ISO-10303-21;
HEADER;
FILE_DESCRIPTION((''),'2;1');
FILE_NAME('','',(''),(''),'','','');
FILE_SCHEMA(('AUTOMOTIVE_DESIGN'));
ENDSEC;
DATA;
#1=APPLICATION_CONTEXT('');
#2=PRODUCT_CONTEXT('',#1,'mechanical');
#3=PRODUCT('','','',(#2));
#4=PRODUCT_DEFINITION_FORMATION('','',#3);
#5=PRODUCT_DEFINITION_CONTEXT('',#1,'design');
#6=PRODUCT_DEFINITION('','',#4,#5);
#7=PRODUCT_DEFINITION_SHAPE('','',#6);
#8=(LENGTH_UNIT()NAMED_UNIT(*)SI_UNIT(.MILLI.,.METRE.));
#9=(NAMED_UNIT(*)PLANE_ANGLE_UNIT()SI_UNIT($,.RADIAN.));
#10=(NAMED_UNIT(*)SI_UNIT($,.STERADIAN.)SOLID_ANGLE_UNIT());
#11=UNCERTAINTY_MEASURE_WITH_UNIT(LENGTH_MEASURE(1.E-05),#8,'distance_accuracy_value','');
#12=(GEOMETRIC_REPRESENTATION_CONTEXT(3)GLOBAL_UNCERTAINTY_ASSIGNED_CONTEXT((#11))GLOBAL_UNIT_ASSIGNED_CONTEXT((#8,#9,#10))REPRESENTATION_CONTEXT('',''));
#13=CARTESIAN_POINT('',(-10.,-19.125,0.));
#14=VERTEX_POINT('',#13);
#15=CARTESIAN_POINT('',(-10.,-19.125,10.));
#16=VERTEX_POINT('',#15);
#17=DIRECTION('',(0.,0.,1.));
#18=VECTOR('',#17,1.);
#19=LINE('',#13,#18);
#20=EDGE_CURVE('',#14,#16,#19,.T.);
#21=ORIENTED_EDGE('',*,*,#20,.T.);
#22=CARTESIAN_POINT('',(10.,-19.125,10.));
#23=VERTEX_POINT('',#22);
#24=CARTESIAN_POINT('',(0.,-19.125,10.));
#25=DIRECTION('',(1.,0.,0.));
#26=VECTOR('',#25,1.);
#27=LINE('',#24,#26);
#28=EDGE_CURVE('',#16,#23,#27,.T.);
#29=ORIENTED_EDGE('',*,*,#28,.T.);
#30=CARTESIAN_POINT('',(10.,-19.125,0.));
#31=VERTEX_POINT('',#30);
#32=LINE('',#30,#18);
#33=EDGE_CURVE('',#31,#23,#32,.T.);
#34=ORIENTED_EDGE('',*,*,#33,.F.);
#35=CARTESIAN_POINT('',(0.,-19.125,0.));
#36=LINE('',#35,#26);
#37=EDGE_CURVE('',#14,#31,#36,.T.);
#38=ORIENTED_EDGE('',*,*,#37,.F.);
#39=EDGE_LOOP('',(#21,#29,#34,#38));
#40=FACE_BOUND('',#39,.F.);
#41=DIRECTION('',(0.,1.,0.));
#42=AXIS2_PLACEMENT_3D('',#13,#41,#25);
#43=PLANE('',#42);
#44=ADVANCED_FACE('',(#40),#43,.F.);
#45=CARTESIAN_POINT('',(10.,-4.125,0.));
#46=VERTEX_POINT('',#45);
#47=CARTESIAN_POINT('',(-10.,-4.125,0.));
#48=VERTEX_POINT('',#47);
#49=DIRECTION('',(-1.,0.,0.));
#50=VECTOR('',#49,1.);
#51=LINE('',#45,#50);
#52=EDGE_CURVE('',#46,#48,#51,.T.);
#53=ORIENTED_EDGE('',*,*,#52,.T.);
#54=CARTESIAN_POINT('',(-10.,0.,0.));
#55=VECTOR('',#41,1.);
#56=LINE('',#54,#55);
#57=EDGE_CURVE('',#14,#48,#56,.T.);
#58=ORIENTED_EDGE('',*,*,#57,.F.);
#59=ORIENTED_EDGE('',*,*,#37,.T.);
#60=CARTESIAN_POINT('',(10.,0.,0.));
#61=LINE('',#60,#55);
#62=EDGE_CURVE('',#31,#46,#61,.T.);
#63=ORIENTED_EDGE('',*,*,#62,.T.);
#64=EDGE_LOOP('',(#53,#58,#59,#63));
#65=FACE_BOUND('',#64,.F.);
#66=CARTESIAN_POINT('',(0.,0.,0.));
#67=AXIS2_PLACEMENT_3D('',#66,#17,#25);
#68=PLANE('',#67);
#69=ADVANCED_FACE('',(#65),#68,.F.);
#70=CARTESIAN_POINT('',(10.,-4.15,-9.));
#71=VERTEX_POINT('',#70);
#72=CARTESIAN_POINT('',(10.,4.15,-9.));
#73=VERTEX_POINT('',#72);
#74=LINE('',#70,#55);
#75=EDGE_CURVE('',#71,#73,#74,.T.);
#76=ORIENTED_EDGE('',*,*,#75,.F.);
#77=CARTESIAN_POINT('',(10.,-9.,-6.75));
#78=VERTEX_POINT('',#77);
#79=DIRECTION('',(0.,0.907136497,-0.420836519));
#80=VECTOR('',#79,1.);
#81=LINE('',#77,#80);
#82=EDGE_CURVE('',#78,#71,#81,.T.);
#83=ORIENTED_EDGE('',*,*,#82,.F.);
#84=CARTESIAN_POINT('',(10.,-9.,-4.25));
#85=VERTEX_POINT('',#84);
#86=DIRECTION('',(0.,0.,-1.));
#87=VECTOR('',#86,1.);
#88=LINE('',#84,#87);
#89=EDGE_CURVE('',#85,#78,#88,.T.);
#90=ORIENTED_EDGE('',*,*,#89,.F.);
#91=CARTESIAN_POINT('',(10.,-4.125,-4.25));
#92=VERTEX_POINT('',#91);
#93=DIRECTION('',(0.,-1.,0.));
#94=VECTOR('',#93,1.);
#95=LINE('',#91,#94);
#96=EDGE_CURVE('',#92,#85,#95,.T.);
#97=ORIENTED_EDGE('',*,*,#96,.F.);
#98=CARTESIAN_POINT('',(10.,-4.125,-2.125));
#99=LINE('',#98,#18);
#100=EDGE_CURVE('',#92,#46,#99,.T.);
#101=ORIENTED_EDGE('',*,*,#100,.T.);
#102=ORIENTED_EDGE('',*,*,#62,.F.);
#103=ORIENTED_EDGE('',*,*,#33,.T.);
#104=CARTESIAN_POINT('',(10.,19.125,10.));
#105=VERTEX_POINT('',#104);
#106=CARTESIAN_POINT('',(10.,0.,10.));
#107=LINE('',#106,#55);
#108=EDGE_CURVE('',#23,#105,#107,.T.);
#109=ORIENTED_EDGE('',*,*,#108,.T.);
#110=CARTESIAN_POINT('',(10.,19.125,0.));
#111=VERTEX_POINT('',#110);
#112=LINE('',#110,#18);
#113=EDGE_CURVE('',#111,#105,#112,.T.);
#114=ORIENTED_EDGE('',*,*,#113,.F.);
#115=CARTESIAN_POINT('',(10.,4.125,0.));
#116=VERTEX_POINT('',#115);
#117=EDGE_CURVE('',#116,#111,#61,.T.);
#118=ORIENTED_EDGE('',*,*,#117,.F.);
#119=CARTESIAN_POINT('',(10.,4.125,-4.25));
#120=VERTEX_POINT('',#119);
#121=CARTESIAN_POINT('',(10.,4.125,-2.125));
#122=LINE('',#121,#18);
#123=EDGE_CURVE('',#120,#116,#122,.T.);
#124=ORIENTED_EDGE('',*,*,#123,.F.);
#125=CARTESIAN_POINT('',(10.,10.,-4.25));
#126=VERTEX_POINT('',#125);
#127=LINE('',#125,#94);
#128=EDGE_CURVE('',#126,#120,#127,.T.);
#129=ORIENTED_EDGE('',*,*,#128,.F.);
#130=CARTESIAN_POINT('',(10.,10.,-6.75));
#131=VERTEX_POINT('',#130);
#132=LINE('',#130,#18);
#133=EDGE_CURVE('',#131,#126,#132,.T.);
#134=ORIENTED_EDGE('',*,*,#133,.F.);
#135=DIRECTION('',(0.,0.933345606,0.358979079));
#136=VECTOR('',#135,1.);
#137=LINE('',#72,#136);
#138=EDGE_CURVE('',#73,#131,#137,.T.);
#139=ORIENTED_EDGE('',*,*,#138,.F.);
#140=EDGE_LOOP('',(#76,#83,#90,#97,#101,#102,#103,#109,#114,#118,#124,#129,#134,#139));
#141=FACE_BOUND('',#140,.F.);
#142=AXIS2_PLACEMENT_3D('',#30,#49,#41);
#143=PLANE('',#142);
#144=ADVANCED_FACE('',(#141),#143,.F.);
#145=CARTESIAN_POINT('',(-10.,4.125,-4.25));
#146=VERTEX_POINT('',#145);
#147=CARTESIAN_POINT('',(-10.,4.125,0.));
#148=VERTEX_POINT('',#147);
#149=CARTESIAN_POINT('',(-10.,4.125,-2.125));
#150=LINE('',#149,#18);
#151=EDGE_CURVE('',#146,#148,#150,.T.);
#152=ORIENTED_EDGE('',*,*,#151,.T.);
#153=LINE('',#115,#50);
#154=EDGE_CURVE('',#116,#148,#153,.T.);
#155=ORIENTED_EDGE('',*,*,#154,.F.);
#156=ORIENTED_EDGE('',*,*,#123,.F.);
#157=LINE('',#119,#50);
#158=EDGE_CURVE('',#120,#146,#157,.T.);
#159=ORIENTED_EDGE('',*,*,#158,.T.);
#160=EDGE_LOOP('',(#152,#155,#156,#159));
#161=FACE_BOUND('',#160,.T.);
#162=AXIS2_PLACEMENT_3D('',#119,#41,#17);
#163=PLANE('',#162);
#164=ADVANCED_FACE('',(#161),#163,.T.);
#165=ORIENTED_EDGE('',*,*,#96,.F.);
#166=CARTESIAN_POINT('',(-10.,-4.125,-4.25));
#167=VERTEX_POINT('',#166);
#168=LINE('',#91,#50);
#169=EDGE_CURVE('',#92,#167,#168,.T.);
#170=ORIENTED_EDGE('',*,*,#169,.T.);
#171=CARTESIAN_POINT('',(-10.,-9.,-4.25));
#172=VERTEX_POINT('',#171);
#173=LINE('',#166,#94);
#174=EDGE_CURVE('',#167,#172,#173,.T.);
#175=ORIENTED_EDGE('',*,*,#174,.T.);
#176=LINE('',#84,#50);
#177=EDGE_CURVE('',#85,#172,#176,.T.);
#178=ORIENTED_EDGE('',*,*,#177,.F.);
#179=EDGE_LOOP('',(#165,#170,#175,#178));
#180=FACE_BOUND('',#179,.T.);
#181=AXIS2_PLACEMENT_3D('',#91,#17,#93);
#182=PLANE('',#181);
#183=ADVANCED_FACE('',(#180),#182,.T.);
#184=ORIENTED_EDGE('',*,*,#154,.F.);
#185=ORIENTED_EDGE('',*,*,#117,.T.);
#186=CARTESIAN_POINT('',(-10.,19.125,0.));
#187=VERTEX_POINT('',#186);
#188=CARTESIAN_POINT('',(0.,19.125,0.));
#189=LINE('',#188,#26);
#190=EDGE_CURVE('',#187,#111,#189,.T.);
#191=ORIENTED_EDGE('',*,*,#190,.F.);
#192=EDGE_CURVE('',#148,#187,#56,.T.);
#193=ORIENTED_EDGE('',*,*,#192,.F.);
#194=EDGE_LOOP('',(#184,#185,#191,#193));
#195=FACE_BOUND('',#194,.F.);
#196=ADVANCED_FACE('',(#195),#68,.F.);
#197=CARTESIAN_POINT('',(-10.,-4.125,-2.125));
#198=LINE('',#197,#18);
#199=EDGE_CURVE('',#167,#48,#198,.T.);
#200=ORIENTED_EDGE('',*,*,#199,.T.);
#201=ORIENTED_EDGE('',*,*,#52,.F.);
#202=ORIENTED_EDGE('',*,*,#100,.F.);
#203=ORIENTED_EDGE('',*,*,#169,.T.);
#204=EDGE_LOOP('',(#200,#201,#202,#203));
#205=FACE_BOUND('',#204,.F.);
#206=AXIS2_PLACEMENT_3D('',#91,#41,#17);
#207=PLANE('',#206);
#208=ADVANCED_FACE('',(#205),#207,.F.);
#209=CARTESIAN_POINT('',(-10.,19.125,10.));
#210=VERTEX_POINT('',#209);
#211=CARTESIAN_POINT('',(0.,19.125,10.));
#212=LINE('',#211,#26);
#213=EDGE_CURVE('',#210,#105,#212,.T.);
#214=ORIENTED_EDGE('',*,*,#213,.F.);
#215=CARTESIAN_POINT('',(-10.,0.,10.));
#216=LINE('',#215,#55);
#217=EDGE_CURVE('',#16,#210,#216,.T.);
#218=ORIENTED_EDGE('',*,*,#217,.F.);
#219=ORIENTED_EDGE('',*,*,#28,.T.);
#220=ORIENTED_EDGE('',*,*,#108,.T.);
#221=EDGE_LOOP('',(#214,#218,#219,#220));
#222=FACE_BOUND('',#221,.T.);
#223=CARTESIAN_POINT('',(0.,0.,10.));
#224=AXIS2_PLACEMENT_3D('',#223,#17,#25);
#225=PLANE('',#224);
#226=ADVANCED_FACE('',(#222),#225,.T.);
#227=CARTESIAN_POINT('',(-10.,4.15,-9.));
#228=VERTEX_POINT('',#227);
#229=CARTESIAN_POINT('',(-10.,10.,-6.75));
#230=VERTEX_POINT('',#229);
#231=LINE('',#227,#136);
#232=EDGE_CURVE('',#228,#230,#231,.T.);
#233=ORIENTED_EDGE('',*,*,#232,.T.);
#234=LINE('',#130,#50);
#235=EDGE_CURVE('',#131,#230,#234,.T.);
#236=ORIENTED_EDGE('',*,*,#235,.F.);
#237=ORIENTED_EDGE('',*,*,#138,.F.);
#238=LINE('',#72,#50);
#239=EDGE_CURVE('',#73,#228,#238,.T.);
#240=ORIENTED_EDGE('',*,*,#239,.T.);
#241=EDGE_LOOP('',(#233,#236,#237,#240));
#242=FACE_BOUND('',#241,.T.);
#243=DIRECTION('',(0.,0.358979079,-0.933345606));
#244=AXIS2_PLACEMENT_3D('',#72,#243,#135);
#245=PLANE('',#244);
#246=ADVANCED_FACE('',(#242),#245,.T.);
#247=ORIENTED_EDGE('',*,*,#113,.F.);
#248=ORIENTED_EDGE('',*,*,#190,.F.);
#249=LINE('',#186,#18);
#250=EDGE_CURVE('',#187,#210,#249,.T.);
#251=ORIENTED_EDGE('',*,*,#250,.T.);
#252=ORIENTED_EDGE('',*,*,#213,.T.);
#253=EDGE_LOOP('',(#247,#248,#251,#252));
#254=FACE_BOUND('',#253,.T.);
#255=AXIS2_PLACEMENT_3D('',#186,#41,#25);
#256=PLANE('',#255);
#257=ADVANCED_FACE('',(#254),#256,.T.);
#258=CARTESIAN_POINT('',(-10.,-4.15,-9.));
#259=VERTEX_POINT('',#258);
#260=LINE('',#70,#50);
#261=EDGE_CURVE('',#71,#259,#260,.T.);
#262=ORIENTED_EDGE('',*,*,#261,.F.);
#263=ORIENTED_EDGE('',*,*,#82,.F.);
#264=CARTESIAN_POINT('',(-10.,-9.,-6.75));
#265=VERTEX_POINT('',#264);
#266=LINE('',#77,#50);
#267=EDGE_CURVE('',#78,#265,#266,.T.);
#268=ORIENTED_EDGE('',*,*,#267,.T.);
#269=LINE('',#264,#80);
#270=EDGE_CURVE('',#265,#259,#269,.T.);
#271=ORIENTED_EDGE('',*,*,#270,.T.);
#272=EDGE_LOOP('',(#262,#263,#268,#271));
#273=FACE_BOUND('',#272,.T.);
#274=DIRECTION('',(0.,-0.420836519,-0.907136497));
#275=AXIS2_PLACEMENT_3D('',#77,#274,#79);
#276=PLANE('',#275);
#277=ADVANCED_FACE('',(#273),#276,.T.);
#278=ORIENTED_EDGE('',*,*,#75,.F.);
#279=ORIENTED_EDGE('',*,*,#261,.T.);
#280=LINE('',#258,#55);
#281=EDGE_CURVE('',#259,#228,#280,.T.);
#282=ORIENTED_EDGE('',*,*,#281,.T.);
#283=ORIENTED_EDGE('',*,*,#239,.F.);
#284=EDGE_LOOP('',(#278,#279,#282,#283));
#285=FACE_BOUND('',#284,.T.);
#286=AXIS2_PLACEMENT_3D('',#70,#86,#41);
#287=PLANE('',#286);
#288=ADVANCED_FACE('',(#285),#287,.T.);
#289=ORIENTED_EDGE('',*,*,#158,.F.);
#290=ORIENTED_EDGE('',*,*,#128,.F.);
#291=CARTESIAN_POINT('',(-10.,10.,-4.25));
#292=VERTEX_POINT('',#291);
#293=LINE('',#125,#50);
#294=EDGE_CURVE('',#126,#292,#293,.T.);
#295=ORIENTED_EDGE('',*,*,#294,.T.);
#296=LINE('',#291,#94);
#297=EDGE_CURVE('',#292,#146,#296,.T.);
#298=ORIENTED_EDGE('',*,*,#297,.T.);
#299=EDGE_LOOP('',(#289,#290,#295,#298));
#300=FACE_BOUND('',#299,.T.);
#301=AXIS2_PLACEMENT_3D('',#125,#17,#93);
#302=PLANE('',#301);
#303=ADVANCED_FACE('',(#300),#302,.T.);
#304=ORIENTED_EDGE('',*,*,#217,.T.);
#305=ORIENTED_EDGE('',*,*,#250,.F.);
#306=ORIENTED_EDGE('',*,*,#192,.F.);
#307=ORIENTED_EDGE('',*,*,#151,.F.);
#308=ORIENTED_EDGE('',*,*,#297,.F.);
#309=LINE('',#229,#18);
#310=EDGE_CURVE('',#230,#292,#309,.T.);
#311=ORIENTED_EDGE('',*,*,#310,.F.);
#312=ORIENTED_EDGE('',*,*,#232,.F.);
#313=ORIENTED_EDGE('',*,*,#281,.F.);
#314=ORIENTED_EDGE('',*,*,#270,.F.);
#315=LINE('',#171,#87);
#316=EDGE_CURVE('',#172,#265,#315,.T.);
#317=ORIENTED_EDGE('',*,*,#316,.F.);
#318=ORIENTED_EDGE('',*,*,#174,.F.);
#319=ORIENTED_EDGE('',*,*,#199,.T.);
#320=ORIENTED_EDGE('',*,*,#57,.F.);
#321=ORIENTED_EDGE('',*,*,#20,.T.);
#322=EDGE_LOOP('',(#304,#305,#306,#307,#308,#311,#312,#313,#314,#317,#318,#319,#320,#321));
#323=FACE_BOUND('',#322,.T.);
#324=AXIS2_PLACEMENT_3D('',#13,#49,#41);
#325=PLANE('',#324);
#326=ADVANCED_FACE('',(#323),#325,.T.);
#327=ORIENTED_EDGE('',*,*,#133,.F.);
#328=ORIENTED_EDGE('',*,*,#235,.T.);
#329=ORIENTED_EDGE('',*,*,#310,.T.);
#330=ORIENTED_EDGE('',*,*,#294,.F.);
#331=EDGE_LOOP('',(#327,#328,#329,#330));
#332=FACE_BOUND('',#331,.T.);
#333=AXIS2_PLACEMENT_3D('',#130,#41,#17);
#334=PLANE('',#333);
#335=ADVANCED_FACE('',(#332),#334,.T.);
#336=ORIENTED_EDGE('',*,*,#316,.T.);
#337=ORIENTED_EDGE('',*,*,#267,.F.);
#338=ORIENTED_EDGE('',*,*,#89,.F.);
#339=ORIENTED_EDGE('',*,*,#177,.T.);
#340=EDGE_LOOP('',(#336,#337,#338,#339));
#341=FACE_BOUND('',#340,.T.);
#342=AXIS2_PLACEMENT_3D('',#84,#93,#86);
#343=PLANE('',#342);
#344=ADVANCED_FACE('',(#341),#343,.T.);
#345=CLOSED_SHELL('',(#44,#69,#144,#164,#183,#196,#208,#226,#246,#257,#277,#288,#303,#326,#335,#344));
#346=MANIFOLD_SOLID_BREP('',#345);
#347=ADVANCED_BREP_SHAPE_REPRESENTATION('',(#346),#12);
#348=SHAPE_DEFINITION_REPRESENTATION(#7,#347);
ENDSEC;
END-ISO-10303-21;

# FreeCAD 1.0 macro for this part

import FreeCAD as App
import Part
import Sketcher

V = App.Vector


def add_polygon(sketch, points):
    """Adds a closed chain of lines whose ends are joined by coincident constraints."""
    first, n = sketch.GeometryCount, len(points)
    for a, b in zip(points, points[1:] + points[:1]):
        sketch.addGeometry(Part.LineSegment(App.Vector(*a, 0), App.Vector(*b, 0)), False)
    for i in range(n):
        sketch.addConstraint(Sketcher.Constraint("Coincident", first + i, 2, first + (i + 1) % n, 1))

doc = App.newDocument("Part")
body = doc.addObject("PartDesign::Body", "Body")

sketch1 = body.newObject("Sketcher::SketchObject", "Sketch")
sketch1.AttachmentSupport = (doc.getObject("XY_Plane"), [""])
sketch1.MapMode = "FlatFace"
add_polygon(sketch1, [(-10, 19.125), (-10, -19.125), (10, -19.125), (10, 19.125)])
sketch1.addConstraint([
    Sketcher.Constraint("Vertical", 0),
    Sketcher.Constraint("Horizontal", 1),
    Sketcher.Constraint("Vertical", 2),
    Sketcher.Constraint("Horizontal", 3),
    Sketcher.Constraint("Symmetric", 0, 2, 2, 2, -1, 1),
    Sketcher.Constraint("DistanceX", 1, 1, 1, 2, 20.0),
    Sketcher.Constraint("DistanceY", 0, 2, 0, 1, 38.25),
])
pad1 = body.newObject("PartDesign::Pad", "Pad")
pad1.Profile = sketch1
pad1.Length = 10

sketch2 = body.newObject("Sketcher::SketchObject", "Sketch001")
sketch2.AttachmentSupport = (doc.getObject("YZ_Plane"), [""])
sketch2.MapMode = "FlatFace"
sketch2.AttachmentOffset = App.Placement(V(0, 0, 10), App.Rotation())
add_polygon(sketch2, [(4.125, -4.25), (4.125, 0), (-4.125, 0), (-4.125, -4.25), (-9, -4.25), (-9, -6.75), (-4.15, -9), (4.15, -9), (10, -6.75), (10, -4.25)])
sketch2.addConstraint([
    Sketcher.Constraint("Vertical", 0),
    Sketcher.Constraint("Horizontal", 1),
    Sketcher.Constraint("Vertical", 2),
    Sketcher.Constraint("Horizontal", 3),
    Sketcher.Constraint("Vertical", 4),
    Sketcher.Constraint("Horizontal", 6),
    Sketcher.Constraint("Vertical", 8),
    Sketcher.Constraint("Horizontal", 9),
    Sketcher.Constraint("Symmetric", 0, 2, 1, 2, -1, 1),
    Sketcher.Constraint("Horizontal", 4, 2, 7, 2),
    Sketcher.Constraint("Horizontal", 3, 2, 8, 2),
    Sketcher.Constraint("DistanceX", 6, 1, 6, 2, 8.3),
    Sketcher.Constraint("DistanceY", 4, 2, 4, 1, 2.5),
    Sketcher.Constraint("DistanceX", 3, 2, -1, 1, 9.0),
    Sketcher.Constraint("DistanceY", 5, 2, -1, 1, 9.0),
    Sketcher.Constraint("DistanceX", -1, 1, 7, 2, 10.0),
    Sketcher.Constraint("DistanceX", 1, 2, 1, 1, 8.25),
    Sketcher.Constraint("DistanceY", 0, 1, 0, 2, 4.25),
    Sketcher.Constraint("DistanceX", 5, 2, -1, 1, 4.15),
])
pad2 = body.newObject("PartDesign::Pad", "Pad001")
pad2.Profile = sketch2
pad2.Length = 20
pad2.Reversed = True

doc.recompute()
